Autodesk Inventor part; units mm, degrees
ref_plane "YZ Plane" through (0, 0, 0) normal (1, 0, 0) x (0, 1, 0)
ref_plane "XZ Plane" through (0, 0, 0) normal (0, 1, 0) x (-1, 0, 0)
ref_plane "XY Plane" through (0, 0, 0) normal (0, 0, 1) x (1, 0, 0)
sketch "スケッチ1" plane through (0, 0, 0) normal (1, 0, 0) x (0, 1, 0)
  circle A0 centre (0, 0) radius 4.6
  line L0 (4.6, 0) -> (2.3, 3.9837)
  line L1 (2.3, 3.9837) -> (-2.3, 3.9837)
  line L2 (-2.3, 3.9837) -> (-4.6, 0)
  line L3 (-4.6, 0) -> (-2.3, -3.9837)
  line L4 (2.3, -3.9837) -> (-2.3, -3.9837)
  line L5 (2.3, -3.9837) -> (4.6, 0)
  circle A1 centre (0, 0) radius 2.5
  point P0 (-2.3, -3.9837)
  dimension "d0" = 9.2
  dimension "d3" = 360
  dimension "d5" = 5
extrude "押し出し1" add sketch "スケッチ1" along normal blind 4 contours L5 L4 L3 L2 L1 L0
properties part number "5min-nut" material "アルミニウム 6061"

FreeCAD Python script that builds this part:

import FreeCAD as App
import Part
import Sketcher
from FreeCAD import Vector
Q = App.Units.Quantity

doc = App.newDocument("Part")
body = doc.addObject("PartDesign::Body", "Body")

sketch1 = body.newObject("Sketcher::SketchObject", "Sketch")
sketch1.AttachmentSupport = (doc.getObject("YZ_Plane"), [""])
sketch1.MapMode = "FlatFace"
sketch1.addGeometry(Part.LineSegment(Vector(2.3, -4, 0), Vector(4.6, 0, 0)), False)
sketch1.addGeometry(Part.LineSegment(Vector(4.6, 0, 0), Vector(2.3, 4, 0)), False)
sketch1.addGeometry(Part.LineSegment(Vector(2.3, 4, 0), Vector(-2.3, 4, 0)), False)
sketch1.addGeometry(Part.LineSegment(Vector(-2.3, 4, 0), Vector(-4.6, 0, 0)), False)
sketch1.addGeometry(Part.LineSegment(Vector(-4.6, 0, 0), Vector(-2.3, -4, 0)), False)
sketch1.addGeometry(Part.LineSegment(Vector(-2.3, -4, 0), Vector(2.3, -4, 0)), False)
sketch1.addGeometry(Part.Circle(Vector(0, 0, 0), Vector(0, 0, 1), 2.5), False)
sketch1.addConstraint(Sketcher.Constraint("Coincident", 0, 2, 1, 1))
sketch1.addConstraint(Sketcher.Constraint("Coincident", 1, 2, 2, 1))
sketch1.addConstraint(Sketcher.Constraint("Coincident", 2, 2, 3, 1))
sketch1.addConstraint(Sketcher.Constraint("Coincident", 3, 2, 4, 1))
sketch1.addConstraint(Sketcher.Constraint("Coincident", 4, 2, 5, 1))
sketch1.addConstraint(Sketcher.Constraint("Coincident", 5, 2, 0, 1))
sketch1.addConstraint(Sketcher.Constraint("Horizontal", 2))
sketch1.addConstraint(Sketcher.Constraint("Horizontal", 5))
sketch1.addConstraint(Sketcher.Constraint("Coincident", 6, 3, -1, 1))
sketch1.addConstraint(Sketcher.Constraint("Symmetric", 0, 2, 3, 2, -1, 1))
sketch1.addConstraint(Sketcher.Constraint("Symmetric", 1, 2, 4, 2, -1, 1))
sketch1.addConstraint(Sketcher.Constraint("PointOnObject", 0, 2, -1))
sketch1.addConstraint(Sketcher.Constraint("Parallel", 0, 3))
sketch1.addConstraint(Sketcher.Constraint("Vertical", 2, 2, 4, 2))
sketch1.addConstraint(Sketcher.Constraint("Diameter", 6, Q("5 mm")))
sketch1.addConstraint(Sketcher.Constraint("DistanceX", 3, 2, 0, 2, Q("9.2 mm")))
sketch1.addConstraint(Sketcher.Constraint("Angle", 0, Q("60 deg")))
sketch1.addConstraint(Sketcher.Constraint("DistanceX", 2, 2, 2, 1, Q("4.6 mm")))
pad1 = body.newObject("PartDesign::Pad", "Pad")
pad1.Profile = sketch1
pad1.Length = 4

doc.recompute()
